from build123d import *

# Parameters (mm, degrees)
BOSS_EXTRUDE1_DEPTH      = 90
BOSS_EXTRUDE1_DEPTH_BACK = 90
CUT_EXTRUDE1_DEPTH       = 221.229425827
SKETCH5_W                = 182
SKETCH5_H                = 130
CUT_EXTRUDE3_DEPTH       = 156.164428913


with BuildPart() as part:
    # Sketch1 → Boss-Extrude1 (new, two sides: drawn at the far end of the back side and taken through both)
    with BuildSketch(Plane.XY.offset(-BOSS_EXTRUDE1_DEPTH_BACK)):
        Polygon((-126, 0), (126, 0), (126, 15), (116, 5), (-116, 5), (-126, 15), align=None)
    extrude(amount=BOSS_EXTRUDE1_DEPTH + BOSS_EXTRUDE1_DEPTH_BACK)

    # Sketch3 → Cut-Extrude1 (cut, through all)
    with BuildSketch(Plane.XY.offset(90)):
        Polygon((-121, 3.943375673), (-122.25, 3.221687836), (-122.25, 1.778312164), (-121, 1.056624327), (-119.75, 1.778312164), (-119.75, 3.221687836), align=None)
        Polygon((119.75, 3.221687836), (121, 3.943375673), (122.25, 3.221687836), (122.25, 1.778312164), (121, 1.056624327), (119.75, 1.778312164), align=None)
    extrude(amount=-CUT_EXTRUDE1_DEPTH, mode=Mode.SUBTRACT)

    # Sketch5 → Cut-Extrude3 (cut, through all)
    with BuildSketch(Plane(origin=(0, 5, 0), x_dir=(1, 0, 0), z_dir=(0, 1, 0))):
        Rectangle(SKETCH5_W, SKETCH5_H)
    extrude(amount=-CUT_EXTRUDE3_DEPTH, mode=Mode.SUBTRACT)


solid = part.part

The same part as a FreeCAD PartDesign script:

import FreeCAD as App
import Part
import Sketcher

V = App.Vector
Q = App.Units.Quantity

doc = App.newDocument("Part")
body = doc.addObject("PartDesign::Body", "Body")

# Sketch on XY plane
sketch1 = doc.addObject("Sketcher::SketchObject", "Sketch")
body.addObject(sketch1)
sketch1.AttachmentSupport = (doc.XY_Plane, [""])
sketch1.MapMode = "FlatFace"
sketch1.addGeometry([
    Part.LineSegment(V(-126, 0, 0), V(126, 0, 0)),  # 0
    Part.LineSegment(V(126, 0, 0), V(126, 15, 0)),  # 1
    Part.LineSegment(V(126, 15, 0), V(116, 5, 0)),  # 2
    Part.LineSegment(V(116, 5, 0), V(-116, 5, 0)),  # 3
    Part.LineSegment(V(-116, 5, 0), V(-126, 15, 0)),  # 4
    Part.LineSegment(V(-126, 15, 0), V(-126, 0, 0)),  # 5
], False)
sketch1.addConstraint([
    Sketcher.Constraint("Coincident", 0, 2, 1, 1),
    Sketcher.Constraint("Coincident", 1, 2, 2, 1),
    Sketcher.Constraint("Coincident", 2, 2, 3, 1),
    Sketcher.Constraint("Coincident", 3, 2, 4, 1),
    Sketcher.Constraint("Coincident", 4, 2, 5, 1),
    Sketcher.Constraint("Coincident", 5, 2, 0, 1),
    Sketcher.Constraint("Horizontal", 0),
    Sketcher.Constraint("Vertical", 1),
    Sketcher.Constraint("Horizontal", 3),
    Sketcher.Constraint("Vertical", 5),
    Sketcher.Constraint("Symmetric", 0, 2, 5, 2, -1, 1),
    Sketcher.Constraint("Perpendicular", 2, 4),
    Sketcher.Constraint("Horizontal", 1, 2, 4, 2),
    Sketcher.Constraint("Equal", 2, 4),
    Sketcher.Constraint("DistanceX", 0, 1, 0, 2, Q("252 mm")),
    Sketcher.Constraint("DistanceX", 3, 2, 3, 1, Q("232 mm")),
    Sketcher.Constraint("DistanceY", 1, 1, 1, 2, Q("15 mm")),
])
pad1 = doc.addObject("PartDesign::Pad", "Pad")
body.addObject(pad1)
pad1.Profile = sketch1
pad1.Type = "TwoLengths"
pad1.Length = 90
pad1.Length2 = 90

# Sketch on XY plane
sketch2 = doc.addObject("Sketcher::SketchObject", "Sketch001")
body.addObject(sketch2)
sketch2.AttachmentSupport = (doc.XY_Plane, [""])
sketch2.MapMode = "FlatFace"
sketch2.AttachmentOffset = App.Placement(V(0, 0, 90), App.Rotation())
sketch2.addGeometry([
    Part.LineSegment(V(-121, 3.943376, 0), V(-122.25, 3.221688, 0)),  # 0
    Part.LineSegment(V(-122.25, 3.221688, 0), V(-122.25, 1.778312, 0)),  # 1
    Part.LineSegment(V(-122.25, 1.778312, 0), V(-121, 1.056624, 0)),  # 2
    Part.LineSegment(V(-121, 1.056624, 0), V(-119.75, 1.778312, 0)),  # 3
    Part.LineSegment(V(-119.75, 1.778312, 0), V(-119.75, 3.221688, 0)),  # 4
    Part.LineSegment(V(-119.75, 3.221688, 0), V(-121, 3.943376, 0)),  # 5
    Part.LineSegment(V(121, 3.943376, 0), V(119.75, 3.221688, 0)),  # 6
    Part.LineSegment(V(119.75, 3.221688, 0), V(119.75, 1.778312, 0)),  # 7
    Part.LineSegment(V(119.75, 1.778312, 0), V(121, 1.056624, 0)),  # 8
    Part.LineSegment(V(121, 1.056624, 0), V(122.25, 1.778312, 0)),  # 9
    Part.LineSegment(V(122.25, 1.778312, 0), V(122.25, 3.221688, 0)),  # 10
    Part.LineSegment(V(122.25, 3.221688, 0), V(121, 3.943376, 0)),  # 11
], False)
sketch2.addConstraint([
    Sketcher.Constraint("Coincident", 0, 2, 1, 1),
    Sketcher.Constraint("Coincident", 1, 2, 2, 1),
    Sketcher.Constraint("Coincident", 2, 2, 3, 1),
    Sketcher.Constraint("Coincident", 3, 2, 4, 1),
    Sketcher.Constraint("Coincident", 4, 2, 5, 1),
    Sketcher.Constraint("Coincident", 5, 2, 0, 1),
    Sketcher.Constraint("Coincident", 6, 2, 7, 1),
    Sketcher.Constraint("Coincident", 7, 2, 8, 1),
    Sketcher.Constraint("Coincident", 8, 2, 9, 1),
    Sketcher.Constraint("Coincident", 9, 2, 10, 1),
    Sketcher.Constraint("Coincident", 10, 2, 11, 1),
    Sketcher.Constraint("Coincident", 11, 2, 6, 1),
    Sketcher.Constraint("Vertical", 1),
    Sketcher.Constraint("Vertical", 4),
    Sketcher.Constraint("Vertical", 7),
    Sketcher.Constraint("Vertical", 10),
    Sketcher.Constraint("Symmetric", 4, 2, 6, 2, -2),
    Sketcher.Constraint("Symmetric", 2, 2, 8, 2, -2),
    Sketcher.Constraint("Symmetric", 1, 2, 9, 2, -2),
    Sketcher.Constraint("Symmetric", 5, 2, 11, 2, -2),
    Sketcher.Constraint("Parallel", 0, 3),
    Sketcher.Constraint("Parallel", 2, 5),
    Sketcher.Constraint("Parallel", 3, 6),
    Sketcher.Constraint("Parallel", 5, 8),
    Sketcher.Constraint("Parallel", 8, 11),
    Sketcher.Constraint("Horizontal", 1, 2, 3, 2),
    Sketcher.Constraint("Horizontal", 0, 2, 4, 2),
    Sketcher.Constraint("Angle", 0, Q("-150 deg")),
    Sketcher.Constraint("DistanceX", 2, 2, -1, 1, Q("121 mm")),
    Sketcher.Constraint("DistanceX", 1, 2, 3, 2, Q("2.5 mm")),
    Sketcher.Constraint("DistanceY", 1, 2, 1, 1, Q("1.443376 mm")),
    Sketcher.Constraint("DistanceY", -1, 1, 0, 2, Q("3.221688 mm")),
])
pocket1 = doc.addObject("PartDesign::Pocket", "Pocket")
body.addObject(pocket1)
pocket1.Profile = sketch2
pocket1.Type = "ThroughAll"

# Sketch on XZ plane
sketch3 = doc.addObject("Sketcher::SketchObject", "Sketch002")
body.addObject(sketch3)
sketch3.AttachmentSupport = (doc.XZ_Plane, [""])
sketch3.MapMode = "FlatFace"
sketch3.AttachmentOffset = App.Placement(V(0, 0, -5), App.Rotation())
sketch3.addGeometry([
    Part.LineSegment(V(-91, -65, 0), V(-91, 65, 0)),
    Part.LineSegment(V(-91, 65, 0), V(91, 65, 0)),
    Part.LineSegment(V(91, 65, 0), V(91, -65, 0)),
    Part.LineSegment(V(91, -65, 0), V(-91, -65, 0)),
], False)
sketch3.addConstraint([
    Sketcher.Constraint("Coincident", 0, 2, 1, 1),
    Sketcher.Constraint("Coincident", 1, 2, 2, 1),
    Sketcher.Constraint("Coincident", 2, 2, 3, 1),
    Sketcher.Constraint("Coincident", 3, 2, 0, 1),
    Sketcher.Constraint("Vertical", 0),
    Sketcher.Constraint("Horizontal", 1),
    Sketcher.Constraint("Vertical", 2),
    Sketcher.Constraint("Horizontal", 3),
    Sketcher.Constraint("Symmetric", 0, 2, 2, 2, -1, 1),
    Sketcher.Constraint("DistanceX", 1, 1, 1, 2, Q("182 mm")),
    Sketcher.Constraint("DistanceY", 0, 1, 0, 2, Q("130 mm")),
])
pocket2 = doc.addObject("PartDesign::Pocket", "Pocket001")
body.addObject(pocket2)
pocket2.Profile = sketch3
pocket2.Type = "ThroughAll"
pocket2.Reversed = True

doc.recompute()
